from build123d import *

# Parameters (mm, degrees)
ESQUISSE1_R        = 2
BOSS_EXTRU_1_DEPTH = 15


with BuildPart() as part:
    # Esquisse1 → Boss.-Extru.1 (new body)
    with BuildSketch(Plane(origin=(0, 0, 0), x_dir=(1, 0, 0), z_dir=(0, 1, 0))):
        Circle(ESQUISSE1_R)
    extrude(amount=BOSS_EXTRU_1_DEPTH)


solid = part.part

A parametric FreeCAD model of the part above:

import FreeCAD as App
import Part
import Sketcher
from FreeCAD import Vector

doc = App.newDocument("Part")
body = doc.addObject("PartDesign::Body", "Body")

sketch1 = doc.addObject("Sketcher::SketchObject", "Sketch")
body.addObject(sketch1)
sketch1.AttachmentSupport = (doc.XZ_Plane, [""])
sketch1.MapMode = "FlatFace"
sketch1.addGeometry(Part.Circle(Vector(0, 0, 0), Vector(0, 0, 1), 2), False)
sketch1.addConstraint(Sketcher.Constraint("Coincident", 0, 3, -1, 1))
sketch1.addConstraint(Sketcher.Constraint("Diameter", 0, 4.0))
pad1 = doc.addObject("PartDesign::Pad", "Pad")
body.addObject(pad1)
pad1.Profile = sketch1
pad1.Length = 15
pad1.Reversed = True

doc.recompute()
